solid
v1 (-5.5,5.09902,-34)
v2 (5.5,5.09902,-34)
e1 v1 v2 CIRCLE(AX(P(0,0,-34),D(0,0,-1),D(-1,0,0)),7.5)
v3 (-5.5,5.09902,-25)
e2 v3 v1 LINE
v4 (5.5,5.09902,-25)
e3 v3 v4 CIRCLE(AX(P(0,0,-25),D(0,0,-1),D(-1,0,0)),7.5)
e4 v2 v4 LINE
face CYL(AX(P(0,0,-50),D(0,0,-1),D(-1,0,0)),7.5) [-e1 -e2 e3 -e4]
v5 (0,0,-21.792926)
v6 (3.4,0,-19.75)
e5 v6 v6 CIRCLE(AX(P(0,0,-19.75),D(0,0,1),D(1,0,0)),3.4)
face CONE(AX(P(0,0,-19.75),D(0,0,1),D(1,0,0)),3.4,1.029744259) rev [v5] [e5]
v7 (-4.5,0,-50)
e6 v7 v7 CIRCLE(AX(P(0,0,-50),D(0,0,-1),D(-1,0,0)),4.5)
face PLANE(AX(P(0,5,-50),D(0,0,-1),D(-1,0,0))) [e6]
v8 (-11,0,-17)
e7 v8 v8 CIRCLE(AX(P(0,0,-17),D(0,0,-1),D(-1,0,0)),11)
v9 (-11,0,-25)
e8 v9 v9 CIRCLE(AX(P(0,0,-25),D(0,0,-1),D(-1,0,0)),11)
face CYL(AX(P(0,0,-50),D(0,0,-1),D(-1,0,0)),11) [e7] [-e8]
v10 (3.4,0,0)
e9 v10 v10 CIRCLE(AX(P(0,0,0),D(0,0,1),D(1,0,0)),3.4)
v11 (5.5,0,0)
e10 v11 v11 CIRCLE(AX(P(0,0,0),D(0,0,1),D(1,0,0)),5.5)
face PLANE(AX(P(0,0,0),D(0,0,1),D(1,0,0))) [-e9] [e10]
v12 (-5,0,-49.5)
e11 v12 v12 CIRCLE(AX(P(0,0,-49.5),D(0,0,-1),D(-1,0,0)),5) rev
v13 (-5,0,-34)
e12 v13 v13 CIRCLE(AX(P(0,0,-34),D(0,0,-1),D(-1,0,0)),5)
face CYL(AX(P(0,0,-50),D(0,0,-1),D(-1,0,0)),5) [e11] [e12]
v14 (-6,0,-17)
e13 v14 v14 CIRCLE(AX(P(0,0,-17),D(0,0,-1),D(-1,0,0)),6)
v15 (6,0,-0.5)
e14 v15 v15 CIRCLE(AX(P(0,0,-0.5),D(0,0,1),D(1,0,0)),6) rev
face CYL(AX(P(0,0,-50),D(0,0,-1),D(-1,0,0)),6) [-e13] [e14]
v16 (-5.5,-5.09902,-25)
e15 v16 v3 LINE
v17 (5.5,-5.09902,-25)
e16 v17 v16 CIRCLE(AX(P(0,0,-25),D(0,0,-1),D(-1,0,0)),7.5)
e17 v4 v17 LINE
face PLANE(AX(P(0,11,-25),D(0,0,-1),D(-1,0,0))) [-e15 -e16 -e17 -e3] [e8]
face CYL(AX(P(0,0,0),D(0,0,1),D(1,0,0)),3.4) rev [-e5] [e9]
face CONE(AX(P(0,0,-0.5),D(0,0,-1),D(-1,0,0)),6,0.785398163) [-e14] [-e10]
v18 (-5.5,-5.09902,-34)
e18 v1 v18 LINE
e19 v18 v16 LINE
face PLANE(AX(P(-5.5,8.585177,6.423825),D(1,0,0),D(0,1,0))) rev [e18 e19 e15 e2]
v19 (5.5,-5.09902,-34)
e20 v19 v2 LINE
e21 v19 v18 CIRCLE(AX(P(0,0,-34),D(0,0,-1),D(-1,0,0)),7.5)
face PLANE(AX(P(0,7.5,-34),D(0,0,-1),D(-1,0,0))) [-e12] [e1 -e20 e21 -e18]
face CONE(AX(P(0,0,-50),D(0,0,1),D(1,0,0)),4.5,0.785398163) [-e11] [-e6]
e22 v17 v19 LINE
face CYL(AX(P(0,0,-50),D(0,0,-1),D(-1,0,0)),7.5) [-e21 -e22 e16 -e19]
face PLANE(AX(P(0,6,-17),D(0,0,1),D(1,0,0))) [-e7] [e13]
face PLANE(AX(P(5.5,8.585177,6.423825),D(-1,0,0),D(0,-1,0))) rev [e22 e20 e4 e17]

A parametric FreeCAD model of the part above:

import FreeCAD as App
import Part
import Sketcher
Q = App.Units.Quantity


def edges_at(feature, points):
    """Names of the edges that pass closest to the given points."""
    edges = feature.Shape.Edges
    near = lambda p: min(range(len(edges)), key=lambda i: edges[i].distToShape(Part.Vertex(*p))[0])
    return sorted({f"Edge{near(p) + 1}" for p in points})


def add_polygon(sketch, points):
    """Adds a closed chain of lines whose ends are joined by coincident constraints."""
    first, n = sketch.GeometryCount, len(points)
    for a, b in zip(points, points[1:] + points[:1]):
        sketch.addGeometry(Part.LineSegment(App.Vector(*a, 0), App.Vector(*b, 0)), False)
    for i in range(n):
        sketch.addConstraint(Sketcher.Constraint("Coincident", first + i, 2, first + (i + 1) % n, 1))

doc = App.newDocument("Part")
body = doc.addObject("PartDesign::Body", "Body")

sketch1 = doc.addObject("Sketcher::SketchObject", "Sketch")
body.addObject(sketch1)
sketch1.AttachmentSupport = (doc.YZ_Plane, [""])
sketch1.MapMode = "FlatFace"
add_polygon(sketch1, [(6, -17), (6, 0), (0, 0), (0, -50), (5, -50), (5, -34), (7.5, -34), (7.5, -25), (11, -25), (11, -17)])
sketch1.addConstraint(Sketcher.Constraint("Vertical", 0))
sketch1.addConstraint(Sketcher.Constraint("Horizontal", 1))
sketch1.addConstraint(Sketcher.Constraint("Vertical", 2))
sketch1.addConstraint(Sketcher.Constraint("Horizontal", 3))
sketch1.addConstraint(Sketcher.Constraint("Vertical", 4))
sketch1.addConstraint(Sketcher.Constraint("Horizontal", 5))
sketch1.addConstraint(Sketcher.Constraint("Vertical", 6))
sketch1.addConstraint(Sketcher.Constraint("Horizontal", 7))
sketch1.addConstraint(Sketcher.Constraint("Vertical", 8))
sketch1.addConstraint(Sketcher.Constraint("Horizontal", 9))
sketch1.addConstraint(Sketcher.Constraint("Coincident", 1, 2, -1, 1))
sketch1.addConstraint(Sketcher.Constraint("Equal", 3, 9))
sketch1.addConstraint(Sketcher.Constraint("DistanceX", 1, 2, 1, 1, Q("6 mm")))
sketch1.addConstraint(Sketcher.Constraint("DistanceX", 3, 1, 3, 2, Q("5 mm")))
sketch1.addConstraint(Sketcher.Constraint("DistanceY", 0, 1, 0, 2, Q("17 mm")))
sketch1.addConstraint(Sketcher.Constraint("DistanceY", 2, 2, 2, 1, Q("50 mm")))
sketch1.addConstraint(Sketcher.Constraint("DistanceY", 4, 1, 4, 2, Q("16 mm")))
sketch1.addConstraint(Sketcher.Constraint("DistanceY", 6, 1, 6, 2, Q("9 mm")))
sketch1.addConstraint(Sketcher.Constraint("DistanceX", 5, 1, 5, 2, Q("2.5 mm")))
revolution = doc.addObject("PartDesign::Revolution", "Revolution")
body.addObject(revolution)
revolution.Profile = sketch1
revolution.ReferenceAxis = (sketch1, ["V_Axis"])
revolution.Angle = 360

sketch2 = doc.addObject("Sketcher::SketchObject", "Sketch001")
body.addObject(sketch2)
sketch2.AttachmentSupport = (doc.XY_Plane, [""])
sketch2.MapMode = "FlatFace"
sketch2.AttachmentOffset = App.Placement(App.Vector(0, 0, -34), App.Rotation())
add_polygon(sketch2, [(-18, 18), (-18, -18), (18, -18), (18, 18)])
add_polygon(sketch2, [(6, -9), (-6, -9), (-6, 9), (6, 9)])
sketch2.addConstraint(Sketcher.Constraint("Vertical", 0))
sketch2.addConstraint(Sketcher.Constraint("Horizontal", 1))
sketch2.addConstraint(Sketcher.Constraint("Vertical", 2))
sketch2.addConstraint(Sketcher.Constraint("Horizontal", 3))
sketch2.addConstraint(Sketcher.Constraint("Horizontal", 4))
sketch2.addConstraint(Sketcher.Constraint("Vertical", 5))
sketch2.addConstraint(Sketcher.Constraint("Horizontal", 6))
sketch2.addConstraint(Sketcher.Constraint("Vertical", 7))
sketch2.addConstraint(Sketcher.Constraint("Symmetric", 0, 2, 2, 2, -1, 1))
sketch2.addConstraint(Sketcher.Constraint("Equal", 3, 0))
sketch2.addConstraint(Sketcher.Constraint("DistanceX", 4, 2, 4, 1, Q("11 mm")))
sketch2.addConstraint(Sketcher.Constraint("DistanceX", 4, 2, -1, 1, Q("5.5 mm")))
sketch2.addConstraint(Sketcher.Constraint("DistanceX", 1, 1, 1, 2, Q("35.778 mm")))
sketch2.addConstraint(Sketcher.Constraint("DistanceY", 5, 1, 5, 2, Q("17.627531 mm")))
sketch2.addConstraint(Sketcher.Constraint("DistanceY", 4, 2, -1, 1, Q("9.042354 mm")))
pocket1 = doc.addObject("PartDesign::Pocket", "Pocket")
body.addObject(pocket1)
pocket1.Profile = sketch2
pocket1.Length = 9
pocket1.Reversed = True

sketch3 = doc.addObject("Sketcher::SketchObject", "Sketch002")
body.addObject(sketch3)
sketch3.AttachmentSupport = (doc.XY_Plane, [""])
sketch3.MapMode = "FlatFace"
sketch3.addGeometry(Part.Circle(App.Vector(0, 0, 0), App.Vector(0, 0, 1), 3.4), False)
sketch3.addConstraint(Sketcher.Constraint("Coincident", 0, 3, -1, 1))
sketch3.addConstraint(Sketcher.Constraint("Diameter", 0, Q("6.8 mm")))
doc.recompute()
hole = doc.addObject("PartDesign::Hole", "Hole")
body.addObject(hole)
hole.Profile = sketch3
hole.ThreadType = "None"
hole.Diameter = 6.8
hole.DepthType = "Dimension"
hole.Depth = 19.75
hole.DrillPoint = "Angled"
hole.DrillPointAngle = 118
doc.recompute()

chamfer = doc.addObject("PartDesign::Chamfer", "Chamfer")
body.addObject(chamfer)
chamfer.Base = (hole, edges_at(hole, [(6, 0, 0), (5, 0, -50)]))
chamfer.Size = 0.5

doc.recompute()
